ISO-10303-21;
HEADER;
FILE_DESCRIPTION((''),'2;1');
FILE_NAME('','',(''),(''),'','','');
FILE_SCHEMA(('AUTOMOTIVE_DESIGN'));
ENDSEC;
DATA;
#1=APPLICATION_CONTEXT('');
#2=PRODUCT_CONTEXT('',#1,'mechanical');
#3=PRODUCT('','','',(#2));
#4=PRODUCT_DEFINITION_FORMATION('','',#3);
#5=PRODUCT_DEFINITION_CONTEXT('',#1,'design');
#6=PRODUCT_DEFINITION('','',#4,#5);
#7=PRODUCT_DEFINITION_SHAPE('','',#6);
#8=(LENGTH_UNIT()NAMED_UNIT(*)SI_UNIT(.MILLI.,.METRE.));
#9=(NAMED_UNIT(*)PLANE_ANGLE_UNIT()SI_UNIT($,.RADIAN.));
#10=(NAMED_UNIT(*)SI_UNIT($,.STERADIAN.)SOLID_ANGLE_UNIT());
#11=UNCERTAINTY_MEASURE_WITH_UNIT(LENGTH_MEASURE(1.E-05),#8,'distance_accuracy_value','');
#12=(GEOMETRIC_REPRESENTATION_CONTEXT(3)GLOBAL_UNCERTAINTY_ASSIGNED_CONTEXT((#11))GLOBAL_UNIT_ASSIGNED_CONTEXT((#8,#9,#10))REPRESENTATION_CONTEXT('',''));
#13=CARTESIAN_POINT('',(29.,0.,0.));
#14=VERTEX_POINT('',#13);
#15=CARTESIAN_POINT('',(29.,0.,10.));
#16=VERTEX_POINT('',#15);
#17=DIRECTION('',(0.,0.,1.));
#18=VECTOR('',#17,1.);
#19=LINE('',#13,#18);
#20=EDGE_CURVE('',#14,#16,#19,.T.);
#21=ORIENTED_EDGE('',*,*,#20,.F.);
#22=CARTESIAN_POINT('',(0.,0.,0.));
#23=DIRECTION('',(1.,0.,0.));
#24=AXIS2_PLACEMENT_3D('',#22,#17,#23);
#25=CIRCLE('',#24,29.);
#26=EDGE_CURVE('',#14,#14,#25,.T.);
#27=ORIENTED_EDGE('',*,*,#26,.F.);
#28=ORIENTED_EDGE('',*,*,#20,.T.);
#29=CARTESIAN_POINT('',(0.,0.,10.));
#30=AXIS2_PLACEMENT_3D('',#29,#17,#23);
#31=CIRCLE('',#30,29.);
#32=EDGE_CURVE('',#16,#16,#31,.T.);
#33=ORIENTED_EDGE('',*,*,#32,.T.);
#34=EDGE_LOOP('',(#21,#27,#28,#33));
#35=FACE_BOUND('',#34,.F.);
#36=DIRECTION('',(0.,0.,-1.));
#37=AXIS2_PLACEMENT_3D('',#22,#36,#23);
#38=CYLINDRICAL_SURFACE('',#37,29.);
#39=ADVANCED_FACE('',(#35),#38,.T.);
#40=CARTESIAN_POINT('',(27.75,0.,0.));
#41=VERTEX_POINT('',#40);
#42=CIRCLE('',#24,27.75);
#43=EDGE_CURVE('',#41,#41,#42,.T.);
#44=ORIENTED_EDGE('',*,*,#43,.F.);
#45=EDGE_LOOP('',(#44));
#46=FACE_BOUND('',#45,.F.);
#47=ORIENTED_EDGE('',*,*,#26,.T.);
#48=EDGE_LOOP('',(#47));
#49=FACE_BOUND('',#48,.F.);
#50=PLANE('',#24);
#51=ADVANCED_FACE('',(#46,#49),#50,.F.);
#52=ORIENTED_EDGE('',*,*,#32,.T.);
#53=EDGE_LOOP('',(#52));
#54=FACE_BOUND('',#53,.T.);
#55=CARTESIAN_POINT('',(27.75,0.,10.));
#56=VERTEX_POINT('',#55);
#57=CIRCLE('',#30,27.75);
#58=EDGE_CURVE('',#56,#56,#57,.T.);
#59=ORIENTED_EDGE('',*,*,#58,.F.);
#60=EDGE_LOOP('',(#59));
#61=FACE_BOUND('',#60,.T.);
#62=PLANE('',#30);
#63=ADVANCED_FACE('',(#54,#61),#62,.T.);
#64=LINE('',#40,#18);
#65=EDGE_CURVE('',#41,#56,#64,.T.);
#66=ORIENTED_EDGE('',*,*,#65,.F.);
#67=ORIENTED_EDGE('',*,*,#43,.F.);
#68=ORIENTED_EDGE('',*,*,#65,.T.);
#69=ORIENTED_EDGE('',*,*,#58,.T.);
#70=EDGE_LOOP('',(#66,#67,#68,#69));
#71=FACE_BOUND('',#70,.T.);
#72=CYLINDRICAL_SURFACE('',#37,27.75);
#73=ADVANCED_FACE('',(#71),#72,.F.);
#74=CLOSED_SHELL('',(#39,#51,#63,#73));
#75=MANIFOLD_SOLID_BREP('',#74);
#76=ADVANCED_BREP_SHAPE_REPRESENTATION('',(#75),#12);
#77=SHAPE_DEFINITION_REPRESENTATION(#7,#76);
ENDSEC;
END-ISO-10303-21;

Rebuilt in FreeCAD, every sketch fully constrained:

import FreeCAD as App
import Part
import Sketcher
from FreeCAD import Vector

doc = App.newDocument("Part")
body = doc.addObject("PartDesign::Body", "Body")

# Sketch on XY plane
sketch1 = body.newObject("Sketcher::SketchObject", "Sketch")
sketch1.AttachmentSupport = (doc.getObject("XY_Plane"), [""])
sketch1.MapMode = "FlatFace"
sketch1.addGeometry(Part.Circle(Vector(0, 0, 0), Vector(0, 0, 1), 29), False)
sketch1.addGeometry(Part.Circle(Vector(0, 0, 0), Vector(0, 0, 1), 28), False)
sketch1.addConstraint(Sketcher.Constraint("Coincident", 0, 3, -1, 1))
sketch1.addConstraint(Sketcher.Constraint("Coincident", 1, 3, -1, 1))
sketch1.addConstraint(Sketcher.Constraint("Diameter", 0, 58.0))
sketch1.addConstraint(Sketcher.Constraint("Diameter", 1, 55.5))
pad1 = body.newObject("PartDesign::Pad", "Pad")
pad1.Profile = sketch1
pad1.Length = 10

doc.recompute()
